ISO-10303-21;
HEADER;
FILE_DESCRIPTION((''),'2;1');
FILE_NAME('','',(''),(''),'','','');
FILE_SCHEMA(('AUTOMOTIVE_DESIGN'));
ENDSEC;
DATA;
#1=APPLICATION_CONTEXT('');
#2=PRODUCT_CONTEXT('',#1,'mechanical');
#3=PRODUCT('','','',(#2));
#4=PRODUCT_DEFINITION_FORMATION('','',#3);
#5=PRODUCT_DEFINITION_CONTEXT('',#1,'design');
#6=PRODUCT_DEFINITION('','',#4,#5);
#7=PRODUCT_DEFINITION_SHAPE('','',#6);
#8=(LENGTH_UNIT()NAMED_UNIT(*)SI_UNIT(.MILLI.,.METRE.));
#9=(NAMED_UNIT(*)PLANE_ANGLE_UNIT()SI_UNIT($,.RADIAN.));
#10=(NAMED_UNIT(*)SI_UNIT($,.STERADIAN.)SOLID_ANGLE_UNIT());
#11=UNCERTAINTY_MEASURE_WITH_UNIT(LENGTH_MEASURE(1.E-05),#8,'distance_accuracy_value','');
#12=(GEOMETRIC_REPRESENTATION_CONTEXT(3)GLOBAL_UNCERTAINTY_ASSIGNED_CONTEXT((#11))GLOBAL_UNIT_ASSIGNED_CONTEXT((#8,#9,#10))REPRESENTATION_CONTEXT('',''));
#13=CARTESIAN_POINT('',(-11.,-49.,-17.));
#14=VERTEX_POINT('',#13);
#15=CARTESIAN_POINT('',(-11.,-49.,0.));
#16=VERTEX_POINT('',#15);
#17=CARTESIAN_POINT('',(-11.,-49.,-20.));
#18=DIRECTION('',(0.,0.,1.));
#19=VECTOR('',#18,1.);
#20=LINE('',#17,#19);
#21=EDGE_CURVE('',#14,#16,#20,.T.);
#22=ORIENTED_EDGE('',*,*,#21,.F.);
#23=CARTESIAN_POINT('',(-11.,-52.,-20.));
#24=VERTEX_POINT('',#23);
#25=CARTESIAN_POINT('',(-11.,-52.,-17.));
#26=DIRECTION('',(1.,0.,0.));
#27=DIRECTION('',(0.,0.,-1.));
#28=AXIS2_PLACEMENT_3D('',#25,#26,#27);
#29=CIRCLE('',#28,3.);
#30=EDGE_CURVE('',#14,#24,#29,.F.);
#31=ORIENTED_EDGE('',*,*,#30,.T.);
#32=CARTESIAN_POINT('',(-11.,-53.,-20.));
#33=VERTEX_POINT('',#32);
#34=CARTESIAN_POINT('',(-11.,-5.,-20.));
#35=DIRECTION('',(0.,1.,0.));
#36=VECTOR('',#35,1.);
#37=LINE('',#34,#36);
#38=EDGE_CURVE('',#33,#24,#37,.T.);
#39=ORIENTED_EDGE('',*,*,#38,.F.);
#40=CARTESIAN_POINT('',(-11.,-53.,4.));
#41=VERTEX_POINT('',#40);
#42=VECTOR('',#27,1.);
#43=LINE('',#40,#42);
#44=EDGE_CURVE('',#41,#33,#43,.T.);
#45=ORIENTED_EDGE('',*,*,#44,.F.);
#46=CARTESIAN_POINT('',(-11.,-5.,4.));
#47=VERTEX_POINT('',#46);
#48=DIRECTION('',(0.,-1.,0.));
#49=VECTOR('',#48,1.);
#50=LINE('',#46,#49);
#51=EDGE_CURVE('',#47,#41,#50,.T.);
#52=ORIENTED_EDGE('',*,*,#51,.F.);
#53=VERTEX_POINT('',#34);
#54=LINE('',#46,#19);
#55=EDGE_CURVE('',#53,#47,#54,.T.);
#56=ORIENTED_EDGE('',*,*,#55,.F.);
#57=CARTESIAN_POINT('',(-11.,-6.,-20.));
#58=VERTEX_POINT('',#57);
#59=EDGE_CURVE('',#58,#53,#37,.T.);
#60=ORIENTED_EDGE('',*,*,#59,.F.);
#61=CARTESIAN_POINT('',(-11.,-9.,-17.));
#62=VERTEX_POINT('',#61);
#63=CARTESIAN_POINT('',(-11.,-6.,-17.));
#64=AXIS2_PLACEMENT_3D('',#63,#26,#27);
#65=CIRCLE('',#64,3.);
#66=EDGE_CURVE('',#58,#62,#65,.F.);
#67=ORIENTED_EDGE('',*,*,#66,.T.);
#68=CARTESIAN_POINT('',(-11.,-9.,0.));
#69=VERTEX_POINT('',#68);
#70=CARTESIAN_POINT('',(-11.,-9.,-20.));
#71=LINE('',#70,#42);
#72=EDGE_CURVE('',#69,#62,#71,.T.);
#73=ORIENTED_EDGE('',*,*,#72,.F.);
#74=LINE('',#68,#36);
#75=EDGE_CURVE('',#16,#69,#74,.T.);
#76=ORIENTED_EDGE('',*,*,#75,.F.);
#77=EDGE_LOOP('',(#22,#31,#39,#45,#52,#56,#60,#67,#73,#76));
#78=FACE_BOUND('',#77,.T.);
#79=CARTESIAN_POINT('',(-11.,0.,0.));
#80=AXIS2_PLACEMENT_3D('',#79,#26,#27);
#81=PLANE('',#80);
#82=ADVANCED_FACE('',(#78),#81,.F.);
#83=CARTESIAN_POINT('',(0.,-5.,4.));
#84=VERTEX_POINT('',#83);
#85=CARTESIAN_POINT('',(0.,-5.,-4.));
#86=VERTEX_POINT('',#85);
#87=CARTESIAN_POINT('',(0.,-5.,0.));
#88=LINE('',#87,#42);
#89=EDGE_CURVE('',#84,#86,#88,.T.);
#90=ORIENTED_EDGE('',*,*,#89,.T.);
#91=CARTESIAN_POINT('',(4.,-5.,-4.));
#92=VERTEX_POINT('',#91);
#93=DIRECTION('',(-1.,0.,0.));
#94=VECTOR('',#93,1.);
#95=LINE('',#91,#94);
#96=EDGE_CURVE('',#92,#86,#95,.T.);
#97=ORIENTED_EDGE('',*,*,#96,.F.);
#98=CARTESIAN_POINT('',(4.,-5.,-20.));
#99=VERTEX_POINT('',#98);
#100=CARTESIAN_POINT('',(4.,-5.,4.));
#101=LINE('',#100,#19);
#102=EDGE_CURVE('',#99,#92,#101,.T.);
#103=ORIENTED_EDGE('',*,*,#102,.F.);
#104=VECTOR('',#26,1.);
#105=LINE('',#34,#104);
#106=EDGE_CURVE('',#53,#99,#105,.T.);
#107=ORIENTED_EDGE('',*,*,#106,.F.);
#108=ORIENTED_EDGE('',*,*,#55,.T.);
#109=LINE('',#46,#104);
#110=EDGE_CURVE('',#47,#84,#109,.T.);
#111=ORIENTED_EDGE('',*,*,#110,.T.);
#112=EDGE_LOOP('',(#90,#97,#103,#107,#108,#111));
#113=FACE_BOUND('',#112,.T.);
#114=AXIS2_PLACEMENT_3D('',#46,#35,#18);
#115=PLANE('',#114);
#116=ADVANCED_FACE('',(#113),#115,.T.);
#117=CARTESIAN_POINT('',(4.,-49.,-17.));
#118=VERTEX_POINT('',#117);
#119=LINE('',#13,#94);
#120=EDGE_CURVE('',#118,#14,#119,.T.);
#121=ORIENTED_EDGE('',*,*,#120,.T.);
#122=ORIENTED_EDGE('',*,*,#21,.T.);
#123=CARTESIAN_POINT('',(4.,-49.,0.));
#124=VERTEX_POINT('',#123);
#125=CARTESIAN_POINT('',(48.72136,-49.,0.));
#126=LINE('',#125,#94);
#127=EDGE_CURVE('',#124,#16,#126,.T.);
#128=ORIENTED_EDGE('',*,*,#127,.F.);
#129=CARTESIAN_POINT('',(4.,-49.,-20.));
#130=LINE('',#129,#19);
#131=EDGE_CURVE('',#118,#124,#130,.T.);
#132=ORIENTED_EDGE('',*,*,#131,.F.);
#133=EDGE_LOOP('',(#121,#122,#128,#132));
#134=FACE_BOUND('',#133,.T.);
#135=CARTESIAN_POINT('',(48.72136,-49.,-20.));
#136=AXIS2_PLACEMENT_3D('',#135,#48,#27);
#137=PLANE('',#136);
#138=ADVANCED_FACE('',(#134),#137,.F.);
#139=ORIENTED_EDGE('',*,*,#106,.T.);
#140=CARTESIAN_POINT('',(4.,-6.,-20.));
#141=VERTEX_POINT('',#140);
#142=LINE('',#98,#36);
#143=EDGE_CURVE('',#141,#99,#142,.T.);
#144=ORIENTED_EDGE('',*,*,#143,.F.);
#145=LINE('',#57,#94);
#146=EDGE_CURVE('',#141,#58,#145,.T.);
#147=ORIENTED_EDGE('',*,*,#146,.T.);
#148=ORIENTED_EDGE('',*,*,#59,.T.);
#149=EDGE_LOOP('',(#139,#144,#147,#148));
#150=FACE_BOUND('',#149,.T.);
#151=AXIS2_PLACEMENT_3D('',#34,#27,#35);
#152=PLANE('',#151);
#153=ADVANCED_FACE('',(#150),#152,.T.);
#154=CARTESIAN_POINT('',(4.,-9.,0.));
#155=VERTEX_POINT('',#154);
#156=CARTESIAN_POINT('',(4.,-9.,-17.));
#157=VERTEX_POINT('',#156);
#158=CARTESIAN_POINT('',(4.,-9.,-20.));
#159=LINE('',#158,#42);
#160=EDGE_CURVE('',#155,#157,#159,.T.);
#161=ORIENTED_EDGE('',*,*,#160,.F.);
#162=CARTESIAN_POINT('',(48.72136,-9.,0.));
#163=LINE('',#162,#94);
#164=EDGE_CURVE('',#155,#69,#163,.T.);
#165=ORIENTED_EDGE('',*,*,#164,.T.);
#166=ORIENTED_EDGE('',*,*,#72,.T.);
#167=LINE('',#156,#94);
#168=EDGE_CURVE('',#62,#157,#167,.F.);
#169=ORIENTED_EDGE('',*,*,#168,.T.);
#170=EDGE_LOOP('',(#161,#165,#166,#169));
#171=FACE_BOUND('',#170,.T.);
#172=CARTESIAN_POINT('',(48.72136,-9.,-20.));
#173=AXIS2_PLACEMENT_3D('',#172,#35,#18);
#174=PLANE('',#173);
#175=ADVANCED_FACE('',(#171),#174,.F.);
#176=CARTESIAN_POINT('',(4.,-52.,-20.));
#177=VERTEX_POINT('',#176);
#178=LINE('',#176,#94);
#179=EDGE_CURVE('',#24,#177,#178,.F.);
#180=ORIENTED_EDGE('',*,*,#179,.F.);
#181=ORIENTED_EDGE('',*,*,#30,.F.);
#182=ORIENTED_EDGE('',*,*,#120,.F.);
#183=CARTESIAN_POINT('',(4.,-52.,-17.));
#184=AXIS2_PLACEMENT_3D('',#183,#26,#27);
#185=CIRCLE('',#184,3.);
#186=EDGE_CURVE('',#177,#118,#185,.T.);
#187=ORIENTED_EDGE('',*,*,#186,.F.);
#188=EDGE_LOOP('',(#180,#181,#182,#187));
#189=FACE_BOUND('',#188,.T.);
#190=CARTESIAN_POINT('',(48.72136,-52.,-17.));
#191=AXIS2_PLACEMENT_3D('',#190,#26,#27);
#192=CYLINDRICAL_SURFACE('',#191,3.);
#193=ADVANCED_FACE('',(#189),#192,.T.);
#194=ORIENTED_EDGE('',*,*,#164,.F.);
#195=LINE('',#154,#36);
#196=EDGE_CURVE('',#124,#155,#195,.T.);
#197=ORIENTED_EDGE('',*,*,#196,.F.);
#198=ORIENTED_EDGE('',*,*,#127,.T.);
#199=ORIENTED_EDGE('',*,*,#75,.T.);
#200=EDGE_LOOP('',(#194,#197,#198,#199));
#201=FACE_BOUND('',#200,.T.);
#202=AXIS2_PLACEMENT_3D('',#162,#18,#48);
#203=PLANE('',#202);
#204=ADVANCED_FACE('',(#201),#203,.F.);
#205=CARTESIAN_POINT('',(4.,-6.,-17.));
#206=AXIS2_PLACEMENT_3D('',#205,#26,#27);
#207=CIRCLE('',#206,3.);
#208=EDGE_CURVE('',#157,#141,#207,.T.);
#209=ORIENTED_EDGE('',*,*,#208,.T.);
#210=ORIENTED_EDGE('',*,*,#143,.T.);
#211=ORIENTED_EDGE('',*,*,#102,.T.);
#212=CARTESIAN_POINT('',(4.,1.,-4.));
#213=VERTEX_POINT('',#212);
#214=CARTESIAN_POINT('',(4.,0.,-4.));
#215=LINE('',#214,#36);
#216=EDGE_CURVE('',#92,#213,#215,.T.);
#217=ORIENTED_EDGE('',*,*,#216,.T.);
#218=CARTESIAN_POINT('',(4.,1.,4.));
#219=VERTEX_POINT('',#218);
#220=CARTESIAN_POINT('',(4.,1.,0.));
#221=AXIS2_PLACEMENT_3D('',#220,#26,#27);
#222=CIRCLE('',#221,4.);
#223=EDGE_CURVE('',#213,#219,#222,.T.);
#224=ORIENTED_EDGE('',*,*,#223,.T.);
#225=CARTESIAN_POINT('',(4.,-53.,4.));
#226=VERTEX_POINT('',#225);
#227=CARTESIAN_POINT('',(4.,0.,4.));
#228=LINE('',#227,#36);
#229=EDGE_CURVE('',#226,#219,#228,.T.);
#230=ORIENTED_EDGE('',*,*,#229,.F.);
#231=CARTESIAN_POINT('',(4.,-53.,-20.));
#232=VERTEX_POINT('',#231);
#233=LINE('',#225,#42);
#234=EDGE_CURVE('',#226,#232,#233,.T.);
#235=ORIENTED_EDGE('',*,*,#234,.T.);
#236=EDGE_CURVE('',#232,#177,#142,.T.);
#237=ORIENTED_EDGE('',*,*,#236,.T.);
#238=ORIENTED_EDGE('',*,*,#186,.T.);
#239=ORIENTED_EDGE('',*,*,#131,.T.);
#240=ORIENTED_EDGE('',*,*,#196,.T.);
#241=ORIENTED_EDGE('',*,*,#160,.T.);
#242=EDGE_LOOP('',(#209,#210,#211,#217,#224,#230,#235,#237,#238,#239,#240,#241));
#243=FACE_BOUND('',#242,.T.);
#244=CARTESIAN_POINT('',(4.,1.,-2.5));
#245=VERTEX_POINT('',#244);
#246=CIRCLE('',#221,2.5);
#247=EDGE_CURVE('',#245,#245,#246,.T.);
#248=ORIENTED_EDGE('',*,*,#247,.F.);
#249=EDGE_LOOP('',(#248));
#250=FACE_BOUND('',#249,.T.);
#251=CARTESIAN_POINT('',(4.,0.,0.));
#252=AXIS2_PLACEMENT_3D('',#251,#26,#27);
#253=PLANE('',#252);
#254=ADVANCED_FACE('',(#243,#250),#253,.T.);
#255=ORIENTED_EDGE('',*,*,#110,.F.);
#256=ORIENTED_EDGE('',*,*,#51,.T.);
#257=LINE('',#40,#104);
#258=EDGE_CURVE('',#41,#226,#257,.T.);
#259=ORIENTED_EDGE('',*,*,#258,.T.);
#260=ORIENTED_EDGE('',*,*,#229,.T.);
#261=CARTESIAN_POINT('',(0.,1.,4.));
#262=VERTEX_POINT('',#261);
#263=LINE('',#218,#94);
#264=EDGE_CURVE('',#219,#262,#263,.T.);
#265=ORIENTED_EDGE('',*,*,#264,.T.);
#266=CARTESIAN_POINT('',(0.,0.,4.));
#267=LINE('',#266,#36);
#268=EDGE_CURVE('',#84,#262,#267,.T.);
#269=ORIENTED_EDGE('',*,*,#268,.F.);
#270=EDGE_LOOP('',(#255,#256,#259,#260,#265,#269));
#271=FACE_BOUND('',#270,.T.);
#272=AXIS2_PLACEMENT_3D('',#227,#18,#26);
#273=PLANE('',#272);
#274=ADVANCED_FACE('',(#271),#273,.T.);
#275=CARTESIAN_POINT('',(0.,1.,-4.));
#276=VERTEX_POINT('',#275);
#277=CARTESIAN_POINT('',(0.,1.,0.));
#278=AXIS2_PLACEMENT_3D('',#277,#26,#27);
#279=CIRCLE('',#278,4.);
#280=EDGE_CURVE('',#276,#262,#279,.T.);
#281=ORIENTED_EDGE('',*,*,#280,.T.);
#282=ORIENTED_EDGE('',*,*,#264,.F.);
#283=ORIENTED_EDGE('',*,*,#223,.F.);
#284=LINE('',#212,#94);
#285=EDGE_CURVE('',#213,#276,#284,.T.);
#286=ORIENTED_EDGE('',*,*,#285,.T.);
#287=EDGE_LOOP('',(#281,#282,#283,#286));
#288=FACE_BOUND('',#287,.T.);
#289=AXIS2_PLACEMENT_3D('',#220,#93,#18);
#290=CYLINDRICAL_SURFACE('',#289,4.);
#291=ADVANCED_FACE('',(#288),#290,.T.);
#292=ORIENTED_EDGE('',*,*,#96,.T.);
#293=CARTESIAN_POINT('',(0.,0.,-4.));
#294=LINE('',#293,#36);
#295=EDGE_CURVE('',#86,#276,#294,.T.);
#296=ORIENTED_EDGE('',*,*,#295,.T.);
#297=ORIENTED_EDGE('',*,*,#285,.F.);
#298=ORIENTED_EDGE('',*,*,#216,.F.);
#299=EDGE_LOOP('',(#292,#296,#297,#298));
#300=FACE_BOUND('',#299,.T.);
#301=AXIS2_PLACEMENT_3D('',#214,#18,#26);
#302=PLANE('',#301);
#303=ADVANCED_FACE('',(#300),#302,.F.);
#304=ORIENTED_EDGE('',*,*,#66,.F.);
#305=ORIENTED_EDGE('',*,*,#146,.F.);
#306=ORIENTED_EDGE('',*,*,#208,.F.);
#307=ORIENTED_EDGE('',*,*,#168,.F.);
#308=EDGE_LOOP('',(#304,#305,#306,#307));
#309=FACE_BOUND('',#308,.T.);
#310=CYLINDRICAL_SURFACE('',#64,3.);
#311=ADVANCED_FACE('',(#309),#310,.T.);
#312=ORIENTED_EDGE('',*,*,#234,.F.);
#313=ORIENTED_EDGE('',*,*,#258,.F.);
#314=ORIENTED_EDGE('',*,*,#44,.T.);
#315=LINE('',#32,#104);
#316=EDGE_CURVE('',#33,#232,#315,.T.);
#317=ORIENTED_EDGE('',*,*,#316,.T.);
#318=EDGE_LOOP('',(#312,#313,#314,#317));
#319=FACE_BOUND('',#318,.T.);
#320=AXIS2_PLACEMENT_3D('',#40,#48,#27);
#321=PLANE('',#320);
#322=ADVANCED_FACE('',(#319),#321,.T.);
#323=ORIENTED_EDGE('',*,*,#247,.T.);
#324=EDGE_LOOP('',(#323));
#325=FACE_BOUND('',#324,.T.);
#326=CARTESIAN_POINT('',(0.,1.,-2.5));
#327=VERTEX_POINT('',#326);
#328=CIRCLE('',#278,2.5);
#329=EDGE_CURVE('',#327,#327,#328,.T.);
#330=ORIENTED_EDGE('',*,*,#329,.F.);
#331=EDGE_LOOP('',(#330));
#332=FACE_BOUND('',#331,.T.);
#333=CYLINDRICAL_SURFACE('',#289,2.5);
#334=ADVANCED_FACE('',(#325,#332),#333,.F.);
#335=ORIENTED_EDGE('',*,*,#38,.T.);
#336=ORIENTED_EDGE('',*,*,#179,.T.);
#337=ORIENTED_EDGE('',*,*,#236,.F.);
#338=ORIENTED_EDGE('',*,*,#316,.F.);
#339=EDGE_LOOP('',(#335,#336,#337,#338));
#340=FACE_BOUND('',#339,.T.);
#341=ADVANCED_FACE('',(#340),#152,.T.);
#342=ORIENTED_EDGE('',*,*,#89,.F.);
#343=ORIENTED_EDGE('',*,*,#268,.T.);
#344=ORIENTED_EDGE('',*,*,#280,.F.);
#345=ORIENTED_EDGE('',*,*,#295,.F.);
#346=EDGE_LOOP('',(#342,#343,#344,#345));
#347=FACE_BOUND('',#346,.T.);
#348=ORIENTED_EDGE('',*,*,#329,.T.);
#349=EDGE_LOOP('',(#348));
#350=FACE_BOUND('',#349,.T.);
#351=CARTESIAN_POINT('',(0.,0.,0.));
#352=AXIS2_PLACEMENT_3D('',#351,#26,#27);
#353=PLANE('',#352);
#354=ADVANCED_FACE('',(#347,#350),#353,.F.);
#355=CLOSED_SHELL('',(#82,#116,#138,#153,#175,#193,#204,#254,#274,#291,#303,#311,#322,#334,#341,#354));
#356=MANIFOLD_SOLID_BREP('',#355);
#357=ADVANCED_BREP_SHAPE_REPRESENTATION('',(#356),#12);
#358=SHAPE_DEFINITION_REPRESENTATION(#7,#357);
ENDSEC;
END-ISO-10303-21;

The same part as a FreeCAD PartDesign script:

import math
import FreeCAD as App
import Part
import Sketcher

V = App.Vector


def edges_at(feature, points):
    """Names of the edges that pass closest to the given points."""
    edges = feature.Shape.Edges
    near = lambda p: min(range(len(edges)), key=lambda i: edges[i].distToShape(Part.Vertex(*p))[0])
    return sorted({f"Edge{near(p) + 1}" for p in points})

doc = App.newDocument("Part")
body = doc.addObject("PartDesign::Body", "Body")

sketch1 = doc.addObject("Sketcher::SketchObject", "Sketch")
body.addObject(sketch1)
sketch1.AttachmentSupport = (doc.YZ_Plane, [""])
sketch1.MapMode = "FlatFace"
sketch1.addGeometry([
    Part.ArcOfCircle(Part.Circle(V(1, 0, 0), V(0, 0, 1), 4), math.radians(-90), math.radians(90)),
    Part.LineSegment(V(1, 4, 0), V(-5, 4, 0)),
    Part.LineSegment(V(-5, 4, 0), V(-5, -4, 0)),
    Part.LineSegment(V(-5, -4, 0), V(1, -4, 0)),
    Part.Circle(V(1, 0, 0), V(0, 0, 1), 2.5),
], False)
sketch1.addConstraint([
    Sketcher.Constraint("Tangent", 0, 2, 1, 1),
    Sketcher.Constraint("Coincident", 1, 2, 2, 1),
    Sketcher.Constraint("Coincident", 2, 2, 3, 1),
    Sketcher.Constraint("Tangent", 3, 2, 0, 1),
    Sketcher.Constraint("Horizontal", 1),
    Sketcher.Constraint("Vertical", 2),
    Sketcher.Constraint("Horizontal", 3),
    Sketcher.Constraint("Coincident", 4, 3, 0, 3),
    Sketcher.Constraint("PointOnObject", 0, 3, -1),
    Sketcher.Constraint("Diameter", 4, 5.0),
    Sketcher.Constraint("Radius", 0, 4.0),
    Sketcher.Constraint("DistanceX", 1, 2, 1, 1, 6.0),
    Sketcher.Constraint("DistanceX", -1, 1, 0, 3, 1.0),
])
pad1 = doc.addObject("PartDesign::Pad", "Pad")
body.addObject(pad1)
pad1.Profile = sketch1
pad1.Length = 4

sketch2 = doc.addObject("Sketcher::SketchObject", "Sketch001")
body.addObject(sketch2)
sketch2.AttachmentSupport = (doc.YZ_Plane, [""])
sketch2.MapMode = "FlatFace"
sketch2.AttachmentOffset = App.Placement(V(0, 0, 4), App.Rotation())
sketch2.addGeometry([
    Part.LineSegment(V(-5, 4, 0), V(-53, 4, 0)),
    Part.LineSegment(V(-53, 4, 0), V(-53, -20, 0)),
    Part.LineSegment(V(-53, -20, 0), V(-5, -20, 0)),
    Part.LineSegment(V(-5, -20, 0), V(-5, 4, 0)),
], False)
sketch2.addConstraint([
    Sketcher.Constraint("Coincident", 0, 2, 1, 1),
    Sketcher.Constraint("Coincident", 1, 2, 2, 1),
    Sketcher.Constraint("Coincident", 2, 2, 3, 1),
    Sketcher.Constraint("Coincident", 3, 2, 0, 1),
    Sketcher.Constraint("Horizontal", 0),
    Sketcher.Constraint("Vertical", 1),
    Sketcher.Constraint("Horizontal", 2),
    Sketcher.Constraint("Vertical", 3),
    Sketcher.Constraint("DistanceX", 0, 2, 0, 1, 48.0),
    Sketcher.Constraint("DistanceY", 1, 2, 1, 1, 24.0),
    Sketcher.Constraint("DistanceX", 0, 2, -1, 1, 53.0),
    Sketcher.Constraint("DistanceY", -1, 1, 0, 2, 4.0),
])
pad2 = doc.addObject("PartDesign::Pad", "Pad001")
body.addObject(pad2)
pad2.Profile = sketch2
pad2.Length = 15
pad2.Reversed = True

sketch3 = doc.addObject("Sketcher::SketchObject", "Sketch002")
body.addObject(sketch3)
sketch3.AttachmentSupport = (doc.YZ_Plane, [""])
sketch3.MapMode = "FlatFace"
sketch3.AttachmentOffset = App.Placement(V(0, 0, -11), App.Rotation())
sketch3.addGeometry([
    Part.LineSegment(V(-9, -20, 0), V(-49, -20, 0)),
    Part.LineSegment(V(-49, -20, 0), V(-49, 0, 0)),
    Part.LineSegment(V(-49, 0, 0), V(-9, 0, 0)),
    Part.LineSegment(V(-9, 0, 0), V(-9, -20, 0)),
], False)
sketch3.addConstraint([
    Sketcher.Constraint("Coincident", 0, 2, 1, 1),
    Sketcher.Constraint("Coincident", 1, 2, 2, 1),
    Sketcher.Constraint("Coincident", 2, 2, 3, 1),
    Sketcher.Constraint("Coincident", 3, 2, 0, 1),
    Sketcher.Constraint("Horizontal", 0),
    Sketcher.Constraint("Vertical", 1),
    Sketcher.Constraint("Horizontal", 2),
    Sketcher.Constraint("Vertical", 3),
    Sketcher.Constraint("PointOnObject", 1, 2, -1),
    Sketcher.Constraint("DistanceX", 0, 2, 0, 1, 40.0),
    Sketcher.Constraint("DistanceY", 1, 1, 1, 2, 20.0),
    Sketcher.Constraint("DistanceX", 0, 2, -1, 1, 49.0),
])
pocket1 = doc.addObject("PartDesign::Pocket", "Pocket")
body.addObject(pocket1)
pocket1.Profile = sketch3
pocket1.Length = 15
pocket1.Reversed = True
doc.recompute()

fillet = doc.addObject("PartDesign::Fillet", "Fillet")
body.addObject(fillet)
fillet.Base = (pocket1, edges_at(pocket1, [(-3.5, -9, -20), (-3.5, -49, -20)]))
fillet.Radius = 3

doc.recompute()
